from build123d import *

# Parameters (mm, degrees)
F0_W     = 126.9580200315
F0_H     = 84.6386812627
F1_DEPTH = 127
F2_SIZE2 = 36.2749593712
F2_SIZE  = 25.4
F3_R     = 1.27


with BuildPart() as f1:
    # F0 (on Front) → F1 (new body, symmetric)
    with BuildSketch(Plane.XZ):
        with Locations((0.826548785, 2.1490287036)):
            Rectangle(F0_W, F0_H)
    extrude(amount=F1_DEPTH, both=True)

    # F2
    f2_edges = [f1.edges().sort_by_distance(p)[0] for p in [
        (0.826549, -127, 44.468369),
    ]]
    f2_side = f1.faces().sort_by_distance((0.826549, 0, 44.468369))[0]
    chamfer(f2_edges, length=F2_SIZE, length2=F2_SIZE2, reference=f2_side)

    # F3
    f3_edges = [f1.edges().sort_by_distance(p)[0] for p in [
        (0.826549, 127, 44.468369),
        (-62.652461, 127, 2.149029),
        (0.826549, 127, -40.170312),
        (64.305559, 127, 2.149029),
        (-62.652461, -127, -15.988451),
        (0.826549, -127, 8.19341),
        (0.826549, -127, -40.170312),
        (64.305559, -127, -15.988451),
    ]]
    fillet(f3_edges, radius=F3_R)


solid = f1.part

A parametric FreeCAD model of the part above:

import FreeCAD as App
import Part
import Sketcher
from FreeCAD import Vector
Q = App.Units.Quantity


def edges_at(feature, points):
    """Names of the edges that pass closest to the given points."""
    edges = feature.Shape.Edges
    near = lambda p: min(range(len(edges)), key=lambda i: edges[i].distToShape(Part.Vertex(*p))[0])
    return sorted({f"Edge{near(p) + 1}" for p in points})


def add_polygon(sketch, points):
    """Adds a closed chain of lines whose ends are joined by coincident constraints."""
    first, n = sketch.GeometryCount, len(points)
    for a, b in zip(points, points[1:] + points[:1]):
        sketch.addGeometry(Part.LineSegment(App.Vector(*a, 0), App.Vector(*b, 0)), False)
    for i in range(n):
        sketch.addConstraint(Sketcher.Constraint("Coincident", first + i, 2, first + (i + 1) % n, 1))

doc = App.newDocument("Part")
body = doc.addObject("PartDesign::Body", "Body")

# Sketch on XZ plane
sketch1 = body.newObject("Sketcher::SketchObject", "Sketch")
sketch1.AttachmentSupport = (doc.getObject("XZ_Plane"), [""])
sketch1.MapMode = "FlatFace"
add_polygon(sketch1, [(-63, 44), (-63, -40), (64, -40), (64, 44)])  # lines 0-3
sketch1.addConstraint(Sketcher.Constraint("Vertical", 0))
sketch1.addConstraint(Sketcher.Constraint("Horizontal", 1))
sketch1.addConstraint(Sketcher.Constraint("Vertical", 2))
sketch1.addConstraint(Sketcher.Constraint("Horizontal", 3))
sketch1.addConstraint(Sketcher.Constraint("DistanceX", 1, 1, 1, 2, 126.95802))
sketch1.addConstraint(Sketcher.Constraint("DistanceY", 0, 2, 0, 1, 84.638681))
sketch1.addConstraint(Sketcher.Constraint("DistanceX", 0, 2, -1, 1, 62.652461))
sketch1.addConstraint(Sketcher.Constraint("DistanceY", 0, 2, -1, 1, 40.170312))
pad1 = body.newObject("PartDesign::Pad", "Pad")
pad1.Profile = sketch1
pad1.Length = Q("10 in")
pad1.Midplane = True
doc.recompute()

chamfer = body.newObject("PartDesign::Chamfer", "Chamfer")
chamfer.Base = (pad1, edges_at(pad1, [(0.827, -127, 44.468)]))
chamfer.ChamferType = "Two distances"
chamfer.Size = Q("1 in")
chamfer.Size2 = 36.274959
doc.recompute()

fillet = body.newObject("PartDesign::Fillet", "Fillet")
fillet.Base = (chamfer, edges_at(chamfer, [
    (0.827, 127, 44.468),
    (-62.652, 127, 2.149),
    (0.827, 127, -40.17),
    (64.306, 127, 2.149),
    (-62.652, -127, -15.988),
    (0.827, -127, 8.193),
    (0.827, -127, -40.17),
    (64.306, -127, -15.988),
]))
fillet.Radius = Q("0.05 in")

doc.recompute()
